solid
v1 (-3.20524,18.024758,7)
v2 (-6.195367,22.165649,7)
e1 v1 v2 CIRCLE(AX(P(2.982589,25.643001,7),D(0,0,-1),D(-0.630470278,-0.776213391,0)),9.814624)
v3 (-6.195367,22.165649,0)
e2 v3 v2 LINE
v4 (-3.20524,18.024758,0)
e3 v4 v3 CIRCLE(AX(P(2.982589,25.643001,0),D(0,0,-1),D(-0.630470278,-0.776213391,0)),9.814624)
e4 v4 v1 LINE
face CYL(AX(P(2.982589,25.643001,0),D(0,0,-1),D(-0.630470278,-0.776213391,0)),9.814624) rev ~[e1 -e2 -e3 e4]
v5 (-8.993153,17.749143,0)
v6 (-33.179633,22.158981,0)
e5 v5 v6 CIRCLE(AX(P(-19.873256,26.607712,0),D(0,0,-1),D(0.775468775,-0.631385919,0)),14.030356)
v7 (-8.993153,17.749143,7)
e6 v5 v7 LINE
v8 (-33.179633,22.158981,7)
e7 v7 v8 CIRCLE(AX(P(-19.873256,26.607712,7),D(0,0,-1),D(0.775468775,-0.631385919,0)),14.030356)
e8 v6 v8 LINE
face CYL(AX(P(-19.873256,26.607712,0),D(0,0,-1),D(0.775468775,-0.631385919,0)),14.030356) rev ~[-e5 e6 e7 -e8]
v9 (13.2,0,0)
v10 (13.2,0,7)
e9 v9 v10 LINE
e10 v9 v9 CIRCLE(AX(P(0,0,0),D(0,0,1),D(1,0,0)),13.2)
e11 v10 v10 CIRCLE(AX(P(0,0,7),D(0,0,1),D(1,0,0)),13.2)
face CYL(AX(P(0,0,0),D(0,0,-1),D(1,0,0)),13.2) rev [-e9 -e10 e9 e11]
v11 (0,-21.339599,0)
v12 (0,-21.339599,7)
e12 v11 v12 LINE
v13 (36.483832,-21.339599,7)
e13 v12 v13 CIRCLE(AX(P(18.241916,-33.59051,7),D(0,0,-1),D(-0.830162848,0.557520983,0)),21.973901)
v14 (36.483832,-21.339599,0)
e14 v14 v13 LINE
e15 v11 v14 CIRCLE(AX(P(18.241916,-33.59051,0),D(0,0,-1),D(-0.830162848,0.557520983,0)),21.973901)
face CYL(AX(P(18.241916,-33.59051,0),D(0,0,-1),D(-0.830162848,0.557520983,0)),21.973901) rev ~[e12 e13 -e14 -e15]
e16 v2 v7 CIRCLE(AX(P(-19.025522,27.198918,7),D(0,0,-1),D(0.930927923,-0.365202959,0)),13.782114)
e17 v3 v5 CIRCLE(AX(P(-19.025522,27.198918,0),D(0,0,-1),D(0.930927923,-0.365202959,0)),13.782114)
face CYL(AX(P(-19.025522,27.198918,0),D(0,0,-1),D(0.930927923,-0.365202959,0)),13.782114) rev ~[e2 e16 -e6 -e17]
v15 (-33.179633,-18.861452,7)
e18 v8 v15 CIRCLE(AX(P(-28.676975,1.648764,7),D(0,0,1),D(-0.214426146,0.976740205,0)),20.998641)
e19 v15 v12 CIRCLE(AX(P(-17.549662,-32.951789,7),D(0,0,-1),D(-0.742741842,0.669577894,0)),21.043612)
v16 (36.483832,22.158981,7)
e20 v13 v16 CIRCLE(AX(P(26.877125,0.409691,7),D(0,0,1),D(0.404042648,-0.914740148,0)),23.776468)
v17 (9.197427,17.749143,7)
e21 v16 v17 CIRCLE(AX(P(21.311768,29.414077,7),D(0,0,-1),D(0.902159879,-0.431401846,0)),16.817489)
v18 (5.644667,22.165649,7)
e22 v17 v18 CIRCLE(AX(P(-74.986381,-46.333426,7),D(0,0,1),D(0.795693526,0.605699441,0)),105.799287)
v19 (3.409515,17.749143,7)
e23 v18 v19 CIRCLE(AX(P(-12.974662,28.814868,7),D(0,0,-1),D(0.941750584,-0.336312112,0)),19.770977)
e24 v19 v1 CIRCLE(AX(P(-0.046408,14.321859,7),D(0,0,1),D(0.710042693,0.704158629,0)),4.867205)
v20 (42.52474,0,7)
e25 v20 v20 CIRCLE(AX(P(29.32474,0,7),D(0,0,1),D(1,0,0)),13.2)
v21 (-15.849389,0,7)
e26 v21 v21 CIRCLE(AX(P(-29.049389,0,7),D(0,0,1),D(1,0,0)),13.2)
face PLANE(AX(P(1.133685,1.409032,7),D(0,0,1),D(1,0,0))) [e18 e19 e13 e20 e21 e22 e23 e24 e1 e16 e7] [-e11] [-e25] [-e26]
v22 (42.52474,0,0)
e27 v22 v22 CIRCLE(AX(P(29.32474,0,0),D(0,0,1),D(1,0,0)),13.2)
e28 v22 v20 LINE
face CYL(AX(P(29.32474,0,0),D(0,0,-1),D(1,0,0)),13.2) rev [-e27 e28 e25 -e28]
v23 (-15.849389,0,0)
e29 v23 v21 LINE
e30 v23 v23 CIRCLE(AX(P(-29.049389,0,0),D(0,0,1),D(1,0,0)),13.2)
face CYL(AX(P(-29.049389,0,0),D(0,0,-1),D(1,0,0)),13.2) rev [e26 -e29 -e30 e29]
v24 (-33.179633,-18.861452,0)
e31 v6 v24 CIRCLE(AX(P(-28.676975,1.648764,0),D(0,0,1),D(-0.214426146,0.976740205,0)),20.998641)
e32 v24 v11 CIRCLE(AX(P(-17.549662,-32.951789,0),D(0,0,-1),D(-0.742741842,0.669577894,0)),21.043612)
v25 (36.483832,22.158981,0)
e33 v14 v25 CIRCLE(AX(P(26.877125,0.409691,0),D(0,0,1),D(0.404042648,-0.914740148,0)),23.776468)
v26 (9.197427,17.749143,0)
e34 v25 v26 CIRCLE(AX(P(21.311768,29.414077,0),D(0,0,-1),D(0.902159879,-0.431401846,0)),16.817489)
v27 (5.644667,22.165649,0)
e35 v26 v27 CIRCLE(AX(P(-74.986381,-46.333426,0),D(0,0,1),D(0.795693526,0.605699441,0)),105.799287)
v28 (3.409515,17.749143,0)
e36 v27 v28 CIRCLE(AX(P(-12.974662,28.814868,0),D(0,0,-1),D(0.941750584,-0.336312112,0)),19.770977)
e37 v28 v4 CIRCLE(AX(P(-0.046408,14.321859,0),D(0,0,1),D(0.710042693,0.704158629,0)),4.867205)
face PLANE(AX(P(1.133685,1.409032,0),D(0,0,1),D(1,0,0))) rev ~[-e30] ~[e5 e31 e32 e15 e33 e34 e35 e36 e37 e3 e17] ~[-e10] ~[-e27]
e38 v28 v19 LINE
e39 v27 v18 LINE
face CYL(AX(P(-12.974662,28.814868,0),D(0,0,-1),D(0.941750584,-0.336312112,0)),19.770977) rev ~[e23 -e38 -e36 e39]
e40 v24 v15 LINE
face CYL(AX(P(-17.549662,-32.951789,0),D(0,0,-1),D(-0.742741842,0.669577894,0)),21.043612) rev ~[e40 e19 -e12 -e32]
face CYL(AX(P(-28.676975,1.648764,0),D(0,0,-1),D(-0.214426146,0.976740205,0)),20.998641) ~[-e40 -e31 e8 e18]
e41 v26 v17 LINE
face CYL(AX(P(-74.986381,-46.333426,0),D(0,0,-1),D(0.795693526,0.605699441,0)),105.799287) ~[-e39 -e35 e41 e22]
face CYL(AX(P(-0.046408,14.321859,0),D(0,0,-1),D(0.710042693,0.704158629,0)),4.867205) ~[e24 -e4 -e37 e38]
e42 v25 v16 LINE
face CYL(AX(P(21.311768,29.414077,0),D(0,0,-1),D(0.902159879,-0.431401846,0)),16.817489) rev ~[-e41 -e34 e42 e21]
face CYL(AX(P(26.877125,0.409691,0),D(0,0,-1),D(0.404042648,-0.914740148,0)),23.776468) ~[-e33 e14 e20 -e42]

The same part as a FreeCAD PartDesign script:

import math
import FreeCAD as App
import Part
import Sketcher
from FreeCAD import Vector

doc = App.newDocument("Part")
body = doc.addObject("PartDesign::Body", "Body")

sketch1 = body.newObject("Sketcher::SketchObject", "Sketch")
sketch1.AttachmentSupport = (doc.getObject("XY_Plane"), [""])
sketch1.MapMode = "FlatFace"
sketch1.addGeometry([
    Part.ArcOfCircle(Part.Circle(Vector(-12.974662, 28.814868, 0), Vector(0, 0, 1), 19.770977), math.radians(-34.034736), math.radians(-19.652347)),
    Part.ArcOfCircle(Part.Circle(Vector(-0.046408, 14.321859, 0), Vector(0, 0, 1), 4.867205), math.radians(44.761611), math.radians(130.466497)),
    Part.ArcOfCircle(Part.Circle(Vector(2.982589, 25.643001, 0), Vector(0, 0, 1), 9.814624), math.radians(-159.249261), math.radians(-129.084827)),
    Part.ArcOfCircle(Part.Circle(Vector(-19.025522, 27.198918, 0), Vector(0, 0, 1), 13.782114), math.radians(-43.287137), math.radians(-21.420074)),
    Part.ArcOfCircle(Part.Circle(Vector(-19.873256, 26.607712, 0), Vector(0, 0, 1), 14.030356), math.radians(-161.513634), math.radians(-39.152447)),
    Part.ArcOfCircle(Part.Circle(Vector(-28.676975, 1.648764, 0), Vector(0, 0, 1), 20.998641), math.radians(102.381863), math.radians(257.618137)),
    Part.ArcOfCircle(Part.Circle(Vector(-17.549662, -32.951789, 0), Vector(0, 0, 1), 21.043612), math.radians(33.49165), math.radians(137.965505)),
    Part.ArcOfCircle(Part.Circle(Vector(18.241916, -33.59051, 0), Vector(0, 0, 1), 21.973901), math.radians(33.88453), math.radians(146.11547)),
    Part.ArcOfCircle(Part.Circle(Vector(26.877125, 0.409691, 0), Vector(0, 0, 1), 23.776468), math.radians(-66.168852), math.radians(66.168852)),
    Part.ArcOfCircle(Part.Circle(Vector(21.311768, 29.414077, 0), Vector(0, 0, 1), 16.817489), math.radians(-136.08271), math.radians(-25.556558)),
    Part.ArcOfCircle(Part.Circle(Vector(-74.986381, -46.333426, 0), Vector(0, 0, 1), 105.799287), math.radians(37.27919), math.radians(40.349139)),
    Part.Circle(Vector(-29.049389, 0, 0), Vector(0, 0, 1), 13.2),
    Part.Circle(Vector(0, 0, 0), Vector(0, 0, 1), 13.2),
    Part.Circle(Vector(29.32474, 0, 0), Vector(0, 0, 1), 13.2),
], False)
sketch1.addConstraint([
    Sketcher.Constraint("Coincident", 0, 1, 1, 1),
    Sketcher.Constraint("Coincident", 1, 2, 2, 2),
    Sketcher.Constraint("Coincident", 2, 1, 3, 2),
    Sketcher.Constraint("Coincident", 3, 1, 4, 2),
    Sketcher.Constraint("Coincident", 4, 1, 5, 1),
    Sketcher.Constraint("Coincident", 5, 2, 6, 2),
    Sketcher.Constraint("Coincident", 6, 1, 7, 2),
    Sketcher.Constraint("Coincident", 7, 1, 8, 1),
    Sketcher.Constraint("Coincident", 8, 2, 9, 2),
    Sketcher.Constraint("Coincident", 9, 1, 10, 1),
    Sketcher.Constraint("Coincident", 10, 2, 0, 2),
    Sketcher.Constraint("Coincident", 12, 3, -1, 1),
    Sketcher.Constraint("Equal", 11, 12),
    Sketcher.Constraint("Equal", 12, 13),
    Sketcher.Constraint("PointOnObject", 11, 3, -1),
    Sketcher.Constraint("PointOnObject", 13, 3, -1),
    Sketcher.Constraint("PointOnObject", 6, 1, -2),
    Sketcher.Constraint("Horizontal", 0, 1, 3, 1),
    Sketcher.Constraint("Horizontal", 6, 1, 7, 1),
    Sketcher.Constraint("Horizontal", 4, 1, 8, 2),
    Sketcher.Constraint("Horizontal", 3, 1, 9, 1),
    Sketcher.Constraint("Horizontal", 2, 1, 10, 2),
    Sketcher.Constraint("Vertical", 4, 1, 5, 2),
    Sketcher.Constraint("Vertical", 7, 1, 8, 2),
    Sketcher.Constraint("Diameter", 11, 26.4),
    Sketcher.Constraint("Radius", 7, 21.973901),
    Sketcher.Constraint("Radius", 5, 20.998641),
    Sketcher.Constraint("Radius", 6, 21.043612),
    Sketcher.Constraint("Radius", 8, 23.776468),
    Sketcher.Constraint("Radius", 9, 16.817489),
    Sketcher.Constraint("DistanceY", -1, 1, 2, 3, 25.643001),
    Sketcher.Constraint("Radius", 0, 19.770977),
    Sketcher.Constraint("Radius", 1, 4.867205),
    Sketcher.Constraint("Radius", 2, 9.814624),
    Sketcher.Constraint("Radius", 3, 13.782114),
    Sketcher.Constraint("Radius", 4, 14.030356),
    Sketcher.Constraint("Radius", 10, 105.799287),
    Sketcher.Constraint("DistanceX", 6, 3, 0, 3, 4.575),
    Sketcher.Constraint("DistanceY", 6, 1, -1, 1, 21.339599),
    Sketcher.Constraint("DistanceY", 6, 3, 4, 3, 59.559501),
    Sketcher.Constraint("DistanceY", 7, 3, 8, 3, 34.000201),
    Sketcher.Constraint("DistanceY", 1, 3, 1, 2, 3.702899),
    Sketcher.Constraint("DistanceX", 0, 3, -1, 1, 12.974662),
    Sketcher.Constraint("DistanceX", 1, 3, -1, 1, 0.046408),
    Sketcher.Constraint("DistanceY", -1, 1, 1, 3, 14.321859),
    Sketcher.Constraint("DistanceY", 7, 3, -1, 1, 33.59051),
    Sketcher.Constraint("DistanceX", -1, 1, 9, 3, 21.311768),
    Sketcher.Constraint("DistanceX", 10, 3, -1, 1, 74.986381),
    Sketcher.Constraint("DistanceX", 11, 3, -1, 1, 29.049389),
    Sketcher.Constraint("DistanceX", -1, 1, 13, 3, 29.32474),
    Sketcher.Constraint("DistanceY", -1, 1, 2, 1, 22.165649),
    Sketcher.Constraint("DistanceX", 3, 3, 0, 3, 6.05086),
])
pad1 = body.newObject("PartDesign::Pad", "Pad")
pad1.Profile = sketch1
pad1.Length = 7

doc.recompute()
